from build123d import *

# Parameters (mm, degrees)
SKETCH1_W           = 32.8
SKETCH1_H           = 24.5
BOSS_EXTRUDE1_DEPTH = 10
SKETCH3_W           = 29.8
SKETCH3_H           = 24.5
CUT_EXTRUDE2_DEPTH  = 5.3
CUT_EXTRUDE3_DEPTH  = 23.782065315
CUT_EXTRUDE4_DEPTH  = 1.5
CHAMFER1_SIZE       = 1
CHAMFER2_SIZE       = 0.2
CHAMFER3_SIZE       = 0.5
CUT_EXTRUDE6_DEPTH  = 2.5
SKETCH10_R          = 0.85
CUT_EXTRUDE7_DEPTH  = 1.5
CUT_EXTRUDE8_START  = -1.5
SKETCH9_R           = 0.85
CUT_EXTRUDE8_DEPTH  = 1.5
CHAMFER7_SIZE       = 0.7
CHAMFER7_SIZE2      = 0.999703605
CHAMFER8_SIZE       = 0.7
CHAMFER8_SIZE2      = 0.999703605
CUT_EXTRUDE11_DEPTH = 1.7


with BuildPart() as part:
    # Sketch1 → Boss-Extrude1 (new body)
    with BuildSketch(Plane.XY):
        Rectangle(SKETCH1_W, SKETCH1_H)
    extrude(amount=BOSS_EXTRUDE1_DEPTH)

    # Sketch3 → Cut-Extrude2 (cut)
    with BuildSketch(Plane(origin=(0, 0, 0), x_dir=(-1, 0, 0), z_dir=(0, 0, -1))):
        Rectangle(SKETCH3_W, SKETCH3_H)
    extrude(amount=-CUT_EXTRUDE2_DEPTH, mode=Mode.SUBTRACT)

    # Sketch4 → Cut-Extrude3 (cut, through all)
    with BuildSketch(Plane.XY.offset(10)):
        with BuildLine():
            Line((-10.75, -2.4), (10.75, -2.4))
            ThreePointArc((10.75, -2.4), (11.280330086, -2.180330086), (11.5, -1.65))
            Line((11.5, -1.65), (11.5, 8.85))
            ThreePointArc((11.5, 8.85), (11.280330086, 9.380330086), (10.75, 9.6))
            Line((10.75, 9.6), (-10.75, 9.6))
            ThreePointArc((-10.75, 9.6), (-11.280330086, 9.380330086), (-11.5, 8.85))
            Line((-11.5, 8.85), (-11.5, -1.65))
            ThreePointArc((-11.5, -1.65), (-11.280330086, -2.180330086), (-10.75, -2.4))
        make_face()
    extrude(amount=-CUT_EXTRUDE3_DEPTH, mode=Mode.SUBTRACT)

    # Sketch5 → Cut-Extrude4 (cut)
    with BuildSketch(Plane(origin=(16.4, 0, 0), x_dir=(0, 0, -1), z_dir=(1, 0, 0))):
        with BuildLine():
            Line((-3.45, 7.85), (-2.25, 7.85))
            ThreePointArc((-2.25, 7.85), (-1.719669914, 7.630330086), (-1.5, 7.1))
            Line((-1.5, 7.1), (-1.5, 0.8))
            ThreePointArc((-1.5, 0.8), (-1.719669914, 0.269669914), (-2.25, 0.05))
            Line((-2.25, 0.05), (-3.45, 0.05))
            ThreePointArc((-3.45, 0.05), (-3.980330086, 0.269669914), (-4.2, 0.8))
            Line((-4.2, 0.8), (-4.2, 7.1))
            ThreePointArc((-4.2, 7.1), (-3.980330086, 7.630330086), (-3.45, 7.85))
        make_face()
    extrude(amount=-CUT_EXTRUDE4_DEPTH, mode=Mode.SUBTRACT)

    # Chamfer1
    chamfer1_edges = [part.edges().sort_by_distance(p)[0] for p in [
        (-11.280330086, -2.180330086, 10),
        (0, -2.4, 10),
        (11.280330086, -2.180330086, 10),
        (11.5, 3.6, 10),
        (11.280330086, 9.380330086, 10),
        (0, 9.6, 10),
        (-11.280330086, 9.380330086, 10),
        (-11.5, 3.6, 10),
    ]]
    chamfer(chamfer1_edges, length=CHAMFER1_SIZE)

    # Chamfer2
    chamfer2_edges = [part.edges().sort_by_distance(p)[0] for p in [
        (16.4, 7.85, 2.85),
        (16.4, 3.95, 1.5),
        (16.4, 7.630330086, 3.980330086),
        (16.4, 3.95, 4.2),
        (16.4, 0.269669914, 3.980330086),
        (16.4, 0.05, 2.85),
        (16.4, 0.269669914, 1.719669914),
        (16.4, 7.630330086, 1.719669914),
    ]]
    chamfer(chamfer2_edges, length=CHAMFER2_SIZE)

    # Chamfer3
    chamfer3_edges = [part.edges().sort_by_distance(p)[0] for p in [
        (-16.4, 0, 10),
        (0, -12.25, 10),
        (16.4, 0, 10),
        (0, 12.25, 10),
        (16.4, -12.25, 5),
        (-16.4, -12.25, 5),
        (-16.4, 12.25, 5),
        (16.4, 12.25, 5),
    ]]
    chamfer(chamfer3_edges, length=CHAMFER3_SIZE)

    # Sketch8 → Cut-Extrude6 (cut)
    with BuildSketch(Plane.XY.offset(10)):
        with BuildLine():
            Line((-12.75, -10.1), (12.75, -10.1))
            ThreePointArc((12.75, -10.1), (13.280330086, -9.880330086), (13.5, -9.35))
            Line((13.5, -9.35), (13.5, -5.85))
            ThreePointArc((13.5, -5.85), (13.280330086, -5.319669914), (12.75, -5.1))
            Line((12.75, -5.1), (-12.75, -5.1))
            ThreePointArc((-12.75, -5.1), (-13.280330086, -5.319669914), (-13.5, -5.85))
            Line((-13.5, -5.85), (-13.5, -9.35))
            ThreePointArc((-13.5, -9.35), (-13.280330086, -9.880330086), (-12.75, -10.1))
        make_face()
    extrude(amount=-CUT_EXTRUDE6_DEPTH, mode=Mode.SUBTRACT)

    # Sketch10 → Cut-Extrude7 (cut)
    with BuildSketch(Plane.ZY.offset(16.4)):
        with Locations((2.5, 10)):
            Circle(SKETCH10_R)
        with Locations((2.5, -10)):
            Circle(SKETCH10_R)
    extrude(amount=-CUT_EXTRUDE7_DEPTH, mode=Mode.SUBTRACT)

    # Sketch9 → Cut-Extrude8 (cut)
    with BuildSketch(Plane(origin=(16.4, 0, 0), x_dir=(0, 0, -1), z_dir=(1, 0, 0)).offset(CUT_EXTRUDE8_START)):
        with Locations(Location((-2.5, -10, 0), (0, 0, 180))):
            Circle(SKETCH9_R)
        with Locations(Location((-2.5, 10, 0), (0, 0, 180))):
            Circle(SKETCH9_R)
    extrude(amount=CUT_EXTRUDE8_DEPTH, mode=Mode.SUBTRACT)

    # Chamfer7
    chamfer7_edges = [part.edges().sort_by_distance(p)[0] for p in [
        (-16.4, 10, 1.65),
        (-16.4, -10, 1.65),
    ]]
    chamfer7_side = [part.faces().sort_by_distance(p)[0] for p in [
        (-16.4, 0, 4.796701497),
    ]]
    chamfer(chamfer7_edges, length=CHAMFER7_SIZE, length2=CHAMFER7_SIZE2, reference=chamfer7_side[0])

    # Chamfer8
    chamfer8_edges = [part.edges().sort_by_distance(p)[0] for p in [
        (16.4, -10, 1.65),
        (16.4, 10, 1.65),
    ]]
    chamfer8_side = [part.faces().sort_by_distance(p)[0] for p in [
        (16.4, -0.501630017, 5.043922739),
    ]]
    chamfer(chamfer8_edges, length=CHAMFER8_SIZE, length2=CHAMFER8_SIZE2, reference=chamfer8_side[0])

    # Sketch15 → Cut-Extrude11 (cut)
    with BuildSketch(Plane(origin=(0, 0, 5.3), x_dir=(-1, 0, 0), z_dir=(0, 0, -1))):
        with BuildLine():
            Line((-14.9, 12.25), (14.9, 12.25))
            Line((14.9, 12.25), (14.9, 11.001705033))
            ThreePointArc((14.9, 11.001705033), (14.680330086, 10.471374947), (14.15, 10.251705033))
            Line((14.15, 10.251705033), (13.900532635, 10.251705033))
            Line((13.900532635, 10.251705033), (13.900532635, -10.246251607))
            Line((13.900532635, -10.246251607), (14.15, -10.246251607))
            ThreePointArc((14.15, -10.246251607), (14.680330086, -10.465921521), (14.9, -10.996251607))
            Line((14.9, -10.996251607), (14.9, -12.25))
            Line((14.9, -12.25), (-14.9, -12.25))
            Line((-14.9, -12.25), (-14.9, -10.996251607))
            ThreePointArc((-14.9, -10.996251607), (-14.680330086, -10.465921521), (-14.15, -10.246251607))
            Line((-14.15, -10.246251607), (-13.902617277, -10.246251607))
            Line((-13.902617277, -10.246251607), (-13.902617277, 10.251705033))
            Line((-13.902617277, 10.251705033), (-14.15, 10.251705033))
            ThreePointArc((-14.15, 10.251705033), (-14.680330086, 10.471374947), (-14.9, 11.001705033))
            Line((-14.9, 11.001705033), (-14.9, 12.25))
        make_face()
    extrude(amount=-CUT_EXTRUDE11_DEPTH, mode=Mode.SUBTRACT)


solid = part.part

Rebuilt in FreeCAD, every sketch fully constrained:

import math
import FreeCAD as App
import Part
import Sketcher


def edges_at(feature, points):
    """Names of the edges that pass closest to the given points."""
    edges = feature.Shape.Edges
    near = lambda p: min(range(len(edges)), key=lambda i: edges[i].distToShape(Part.Vertex(*p))[0])
    return sorted({f"Edge{near(p) + 1}" for p in points})


def add_polygon(sketch, points):
    """Adds a closed chain of lines whose ends are joined by coincident constraints."""
    first, n = sketch.GeometryCount, len(points)
    for a, b in zip(points, points[1:] + points[:1]):
        sketch.addGeometry(Part.LineSegment(App.Vector(*a, 0), App.Vector(*b, 0)), False)
    for i in range(n):
        sketch.addConstraint(Sketcher.Constraint("Coincident", first + i, 2, first + (i + 1) % n, 1))

doc = App.newDocument("Part")
body = doc.addObject("PartDesign::Body", "Body")

sketch1 = body.newObject("Sketcher::SketchObject", "Sketch")
sketch1.AttachmentSupport = (doc.getObject("XY_Plane"), [""])
sketch1.MapMode = "FlatFace"
add_polygon(sketch1, [(-16, 12), (-16, -12), (16, -12), (16, 12)])
sketch1.addConstraint(Sketcher.Constraint("Vertical", 0))
sketch1.addConstraint(Sketcher.Constraint("Horizontal", 1))
sketch1.addConstraint(Sketcher.Constraint("Vertical", 2))
sketch1.addConstraint(Sketcher.Constraint("Horizontal", 3))
sketch1.addConstraint(Sketcher.Constraint("Symmetric", 0, 2, 2, 2, -1, 1))
sketch1.addConstraint(Sketcher.Constraint("DistanceX", 1, 1, 1, 2, 32.8))
sketch1.addConstraint(Sketcher.Constraint("DistanceY", 0, 2, 0, 1, 24.5))
pad1 = body.newObject("PartDesign::Pad", "Pad")
pad1.Profile = sketch1
pad1.Length = 10

sketch2 = body.newObject("Sketcher::SketchObject", "Sketch001")
sketch2.AttachmentSupport = (doc.getObject("XY_Plane"), [""])
sketch2.MapMode = "FlatFace"
add_polygon(sketch2, [(15, 12), (15, -12), (-15, -12), (-15, 12)])
sketch2.addConstraint(Sketcher.Constraint("Vertical", 0))
sketch2.addConstraint(Sketcher.Constraint("Horizontal", 1))
sketch2.addConstraint(Sketcher.Constraint("Vertical", 2))
sketch2.addConstraint(Sketcher.Constraint("Horizontal", 3))
sketch2.addConstraint(Sketcher.Constraint("Symmetric", 0, 2, 2, 2, -1, 1))
sketch2.addConstraint(Sketcher.Constraint("DistanceX", 1, 2, 1, 1, 29.8))
sketch2.addConstraint(Sketcher.Constraint("DistanceY", 0, 2, 0, 1, 24.5))
pocket1 = body.newObject("PartDesign::Pocket", "Pocket")
pocket1.Profile = sketch2
pocket1.Length = 5.3
pocket1.Reversed = True

sketch3 = body.newObject("Sketcher::SketchObject", "Sketch002")
sketch3.AttachmentSupport = (doc.getObject("XY_Plane"), [""])
sketch3.MapMode = "FlatFace"
sketch3.AttachmentOffset = App.Placement(App.Vector(0, 0, 10), App.Rotation())
sketch3.addGeometry(Part.LineSegment(App.Vector(-10.8, -2.4, 0), App.Vector(10.8, -2.4, 0)), False)
sketch3.addGeometry(Part.ArcOfCircle(Part.Circle(App.Vector(10.8, -1.6, 0), App.Vector(0, 0, 1), 0.8), math.radians(-90), math.radians(0)), False)
sketch3.addGeometry(Part.LineSegment(App.Vector(11.5, -1.6, 0), App.Vector(11.5, 8.8, 0)), False)
sketch3.addGeometry(Part.ArcOfCircle(Part.Circle(App.Vector(10.8, 8.8, 0), App.Vector(0, 0, 1), 0.8), math.radians(0), math.radians(90)), False)
sketch3.addGeometry(Part.LineSegment(App.Vector(10.8, 9.6, 0), App.Vector(-10.8, 9.6, 0)), False)
sketch3.addGeometry(Part.ArcOfCircle(Part.Circle(App.Vector(-10.8, 8.8, 0), App.Vector(0, 0, 1), 0.8), math.radians(90), math.radians(180)), False)
sketch3.addGeometry(Part.LineSegment(App.Vector(-11.5, 8.8, 0), App.Vector(-11.5, -1.6, 0)), False)
sketch3.addGeometry(Part.ArcOfCircle(Part.Circle(App.Vector(-10.8, -1.6, 0), App.Vector(0, 0, 1), 0.8), math.radians(180), math.radians(270)), False)
sketch3.addConstraint(Sketcher.Constraint("Tangent", 0, 2, 1, 1))
sketch3.addConstraint(Sketcher.Constraint("Tangent", 1, 2, 2, 1))
sketch3.addConstraint(Sketcher.Constraint("Tangent", 2, 2, 3, 1))
sketch3.addConstraint(Sketcher.Constraint("Tangent", 3, 2, 4, 1))
sketch3.addConstraint(Sketcher.Constraint("Tangent", 4, 2, 5, 1))
sketch3.addConstraint(Sketcher.Constraint("Tangent", 5, 2, 6, 1))
sketch3.addConstraint(Sketcher.Constraint("Tangent", 6, 2, 7, 1))
sketch3.addConstraint(Sketcher.Constraint("Tangent", 7, 2, 0, 1))
sketch3.addConstraint(Sketcher.Constraint("Horizontal", 0))
sketch3.addConstraint(Sketcher.Constraint("Vertical", 2))
sketch3.addConstraint(Sketcher.Constraint("Horizontal", 4))
sketch3.addConstraint(Sketcher.Constraint("Vertical", 6))
sketch3.addConstraint(Sketcher.Constraint("Equal", 1, 3))
sketch3.addConstraint(Sketcher.Constraint("Equal", 3, 5))
sketch3.addConstraint(Sketcher.Constraint("Equal", 5, 7))
sketch3.addConstraint(Sketcher.Constraint("Radius", 1, 0.75))
sketch3.addConstraint(Sketcher.Constraint("DistanceX", 0, 1, 0, 2, 21.5))
sketch3.addConstraint(Sketcher.Constraint("DistanceY", 2, 1, 2, 2, 10.5))
sketch3.addConstraint(Sketcher.Constraint("DistanceY", 0, 2, -1, 1, 2.4))
sketch3.addConstraint(Sketcher.Constraint("DistanceX", -1, 1, 1, 2, 11.5))
pocket2 = body.newObject("PartDesign::Pocket", "Pocket001")
pocket2.Profile = sketch3
pocket2.Type = "ThroughAll"

sketch4 = body.newObject("Sketcher::SketchObject", "Sketch003")
sketch4.AttachmentSupport = (doc.getObject("YZ_Plane"), [""])
sketch4.MapMode = "FlatFace"
sketch4.AttachmentOffset = App.Placement(App.Vector(0, 0, 16.4), App.Rotation())
sketch4.addGeometry(Part.LineSegment(App.Vector(7.8, 2.2, 0), App.Vector(7.8, 3.5, 0)), False)
sketch4.addGeometry(Part.ArcOfCircle(Part.Circle(App.Vector(7.1, 3.5, 0), App.Vector(0, 0, 1), 0.8), math.radians(0), math.radians(90)), False)
sketch4.addGeometry(Part.LineSegment(App.Vector(7.1, 4.2, 0), App.Vector(0.8, 4.2, 0)), False)
sketch4.addGeometry(Part.ArcOfCircle(Part.Circle(App.Vector(0.8, 3.5, 0), App.Vector(0, 0, 1), 0.8), math.radians(90), math.radians(180)), False)
sketch4.addGeometry(Part.LineSegment(App.Vector(0.1, 3.5, 0), App.Vector(0.1, 2.2, 0)), False)
sketch4.addGeometry(Part.ArcOfCircle(Part.Circle(App.Vector(0.8, 2.2, 0), App.Vector(0, 0, 1), 0.8), math.radians(180), math.radians(270)), False)
sketch4.addGeometry(Part.LineSegment(App.Vector(0.8, 1.5, 0), App.Vector(7.1, 1.5, 0)), False)
sketch4.addGeometry(Part.ArcOfCircle(Part.Circle(App.Vector(7.1, 2.2, 0), App.Vector(0, 0, 1), 0.8), math.radians(-90), math.radians(0)), False)
sketch4.addConstraint(Sketcher.Constraint("Tangent", 0, 2, 1, 1))
sketch4.addConstraint(Sketcher.Constraint("Tangent", 1, 2, 2, 1))
sketch4.addConstraint(Sketcher.Constraint("Tangent", 2, 2, 3, 1))
sketch4.addConstraint(Sketcher.Constraint("Tangent", 3, 2, 4, 1))
sketch4.addConstraint(Sketcher.Constraint("Tangent", 4, 2, 5, 1))
sketch4.addConstraint(Sketcher.Constraint("Tangent", 5, 2, 6, 1))
sketch4.addConstraint(Sketcher.Constraint("Tangent", 6, 2, 7, 1))
sketch4.addConstraint(Sketcher.Constraint("Tangent", 7, 2, 0, 1))
sketch4.addConstraint(Sketcher.Constraint("Vertical", 0))
sketch4.addConstraint(Sketcher.Constraint("Horizontal", 2))
sketch4.addConstraint(Sketcher.Constraint("Vertical", 4))
sketch4.addConstraint(Sketcher.Constraint("Horizontal", 6))
sketch4.addConstraint(Sketcher.Constraint("Equal", 1, 3))
sketch4.addConstraint(Sketcher.Constraint("Equal", 3, 5))
sketch4.addConstraint(Sketcher.Constraint("Equal", 5, 7))
sketch4.addConstraint(Sketcher.Constraint("Radius", 1, 0.75))
sketch4.addConstraint(Sketcher.Constraint("DistanceX", 2, 2, 2, 1, 6.3))
sketch4.addConstraint(Sketcher.Constraint("DistanceY", 0, 1, 0, 2, 1.2))
sketch4.addConstraint(Sketcher.Constraint("DistanceX", -1, 1, 1, 3, 7.1))
sketch4.addConstraint(Sketcher.Constraint("DistanceY", -1, 1, 1, 2, 4.2))
pocket3 = body.newObject("PartDesign::Pocket", "Pocket002")
pocket3.Profile = sketch4
pocket3.Length = 1.5
doc.recompute()

chamfer = body.newObject("PartDesign::Chamfer", "Chamfer")
chamfer.Base = (pocket3, edges_at(pocket3, [
    (-11.28, -2.18, 10),
    (0, -2.4, 10),
    (11.28, -2.18, 10),
    (11.5, 3.6, 10),
    (11.28, 9.38, 10),
    (0, 9.6, 10),
    (-11.28, 9.38, 10),
    (-11.5, 3.6, 10),
]))
chamfer.Size = 1
doc.recompute()

chamfer2 = body.newObject("PartDesign::Chamfer", "Chamfer001")
chamfer2.Base = (chamfer, edges_at(chamfer, [
    (16.4, 7.85, 2.85),
    (16.4, 3.95, 1.5),
    (16.4, 7.63, 3.98),
    (16.4, 3.95, 4.2),
    (16.4, 0.27, 3.98),
    (16.4, 0.05, 2.85),
    (16.4, 0.27, 1.72),
    (16.4, 7.63, 1.72),
]))
chamfer2.Size = 0.2
doc.recompute()

chamfer3 = body.newObject("PartDesign::Chamfer", "Chamfer002")
chamfer3.Base = (chamfer2, edges_at(chamfer2, [
    (-16.4, 0, 10),
    (0, -12.25, 10),
    (16.4, 0, 10),
    (0, 12.25, 10),
    (16.4, -12.25, 5),
    (-16.4, -12.25, 5),
    (-16.4, 12.25, 5),
    (16.4, 12.25, 5),
]))
chamfer3.Size = 0.5

sketch5 = body.newObject("Sketcher::SketchObject", "Sketch004")
sketch5.AttachmentSupport = (doc.getObject("XY_Plane"), [""])
sketch5.MapMode = "FlatFace"
sketch5.AttachmentOffset = App.Placement(App.Vector(0, 0, 10), App.Rotation())
sketch5.addGeometry(Part.LineSegment(App.Vector(-12.8, -10.1, 0), App.Vector(12.8, -10.1, 0)), False)
sketch5.addGeometry(Part.ArcOfCircle(Part.Circle(App.Vector(12.8, -9.3, 0), App.Vector(0, 0, 1), 0.8), math.radians(-90), math.radians(0)), False)
sketch5.addGeometry(Part.LineSegment(App.Vector(13.5, -9.3, 0), App.Vector(13.5, -5.8, 0)), False)
sketch5.addGeometry(Part.ArcOfCircle(Part.Circle(App.Vector(12.8, -5.8, 0), App.Vector(0, 0, 1), 0.8), math.radians(0), math.radians(90)), False)
sketch5.addGeometry(Part.LineSegment(App.Vector(12.8, -5.1, 0), App.Vector(-12.8, -5.1, 0)), False)
sketch5.addGeometry(Part.ArcOfCircle(Part.Circle(App.Vector(-12.8, -5.8, 0), App.Vector(0, 0, 1), 0.8), math.radians(90), math.radians(180)), False)
sketch5.addGeometry(Part.LineSegment(App.Vector(-13.5, -5.8, 0), App.Vector(-13.5, -9.3, 0)), False)
sketch5.addGeometry(Part.ArcOfCircle(Part.Circle(App.Vector(-12.8, -9.3, 0), App.Vector(0, 0, 1), 0.8), math.radians(180), math.radians(270)), False)
sketch5.addConstraint(Sketcher.Constraint("Tangent", 0, 2, 1, 1))
sketch5.addConstraint(Sketcher.Constraint("Tangent", 1, 2, 2, 1))
sketch5.addConstraint(Sketcher.Constraint("Tangent", 2, 2, 3, 1))
sketch5.addConstraint(Sketcher.Constraint("Tangent", 3, 2, 4, 1))
sketch5.addConstraint(Sketcher.Constraint("Tangent", 4, 2, 5, 1))
sketch5.addConstraint(Sketcher.Constraint("Tangent", 5, 2, 6, 1))
sketch5.addConstraint(Sketcher.Constraint("Tangent", 6, 2, 7, 1))
sketch5.addConstraint(Sketcher.Constraint("Tangent", 7, 2, 0, 1))
sketch5.addConstraint(Sketcher.Constraint("Horizontal", 0))
sketch5.addConstraint(Sketcher.Constraint("Vertical", 2))
sketch5.addConstraint(Sketcher.Constraint("Horizontal", 4))
sketch5.addConstraint(Sketcher.Constraint("Vertical", 6))
sketch5.addConstraint(Sketcher.Constraint("Equal", 1, 3))
sketch5.addConstraint(Sketcher.Constraint("Equal", 3, 5))
sketch5.addConstraint(Sketcher.Constraint("Equal", 5, 7))
sketch5.addConstraint(Sketcher.Constraint("Radius", 1, 0.75))
sketch5.addConstraint(Sketcher.Constraint("DistanceX", 0, 1, 0, 2, 25.5))
sketch5.addConstraint(Sketcher.Constraint("DistanceY", 2, 1, 2, 2, 3.5))
sketch5.addConstraint(Sketcher.Constraint("DistanceY", 0, 2, -1, 1, 10.1))
sketch5.addConstraint(Sketcher.Constraint("DistanceX", -1, 1, 1, 2, 13.5))
pocket4 = body.newObject("PartDesign::Pocket", "Pocket003")
pocket4.Profile = sketch5
pocket4.Length = 2.5

sketch6 = body.newObject("Sketcher::SketchObject", "Sketch005")
sketch6.AttachmentSupport = (doc.getObject("YZ_Plane"), [""])
sketch6.MapMode = "FlatFace"
sketch6.AttachmentOffset = App.Placement(App.Vector(0, 0, -16.4), App.Rotation())
sketch6.addGeometry(Part.Circle(App.Vector(10, 2.5, 0), App.Vector(0, 0, 1), 0.8), False)
sketch6.addGeometry(Part.Circle(App.Vector(-10, 2.5, 0), App.Vector(0, 0, 1), 0.8), False)
sketch6.addConstraint(Sketcher.Constraint("Equal", 0, 1))
sketch6.addConstraint(Sketcher.Constraint("Symmetric", 0, 3, 1, 3, -2))
sketch6.addConstraint(Sketcher.Constraint("Diameter", 0, 1.7))
sketch6.addConstraint(Sketcher.Constraint("DistanceX", -1, 1, 0, 3, 10.0))
sketch6.addConstraint(Sketcher.Constraint("DistanceY", -1, 1, 0, 3, 2.5))
pocket5 = body.newObject("PartDesign::Pocket", "Pocket004")
pocket5.Profile = sketch6
pocket5.Length = 1.5
pocket5.Reversed = True

sketch7 = body.newObject("Sketcher::SketchObject", "Sketch006")
sketch7.AttachmentSupport = (doc.getObject("YZ_Plane"), [""])
sketch7.MapMode = "FlatFace"
sketch7.AttachmentOffset = App.Placement(App.Vector(0, 0, 14.9), App.Rotation())
sketch7.addGeometry(Part.Circle(App.Vector(-10, 2.5, 0), App.Vector(0, 0, 1), 0.8), False)
sketch7.addGeometry(Part.Circle(App.Vector(10, 2.5, 0), App.Vector(0, 0, 1), 0.8), False)
sketch7.addConstraint(Sketcher.Constraint("Equal", 0, 1))
sketch7.addConstraint(Sketcher.Constraint("Symmetric", 0, 3, 1, 3, -2))
sketch7.addConstraint(Sketcher.Constraint("Diameter", 0, 1.7))
sketch7.addConstraint(Sketcher.Constraint("DistanceX", 0, 3, -1, 1, 10.0))
sketch7.addConstraint(Sketcher.Constraint("DistanceY", -1, 1, 0, 3, 2.5))
pocket6 = body.newObject("PartDesign::Pocket", "Pocket005")
pocket6.Profile = sketch7
pocket6.Length = 1.5
pocket6.Reversed = True
doc.recompute()

chamfer4 = body.newObject("PartDesign::Chamfer", "Chamfer003")
chamfer4.Base = (pocket6, edges_at(pocket6, [(-16.4, 10, 1.65), (-16.4, -10, 1.65)]))
chamfer4.ChamferType = "Two distances"
chamfer4.Size = 0.7
chamfer4.Size2 = 0.999704
doc.recompute()

chamfer5 = body.newObject("PartDesign::Chamfer", "Chamfer004")
chamfer5.Base = (chamfer4, edges_at(chamfer4, [(16.4, -10, 1.65), (16.4, 10, 1.65)]))
chamfer5.ChamferType = "Two distances"
chamfer5.Size = 0.7
chamfer5.Size2 = 0.999704

sketch8 = body.newObject("Sketcher::SketchObject", "Sketch007")
sketch8.AttachmentSupport = (doc.getObject("XY_Plane"), [""])
sketch8.MapMode = "FlatFace"
sketch8.AttachmentOffset = App.Placement(App.Vector(0, 0, 5.3), App.Rotation())
sketch8.addGeometry(Part.LineSegment(App.Vector(-14.9, 12.25, 0), App.Vector(14.9, 12.25, 0)), False)
sketch8.addGeometry(Part.LineSegment(App.Vector(14.9, 12.25, 0), App.Vector(14.9, 11, 0)), False)
sketch8.addGeometry(Part.ArcOfCircle(Part.Circle(App.Vector(14.15, 11, 0), App.Vector(0, 0, 1), 0.75), math.radians(-90), math.radians(0)), False)
sketch8.addGeometry(Part.LineSegment(App.Vector(14.15, 10.25, 0), App.Vector(13.9, 10.25, 0)), False)
sketch8.addGeometry(Part.LineSegment(App.Vector(13.9, 10.25, 0), App.Vector(13.9, -10.25, 0)), False)
sketch8.addGeometry(Part.LineSegment(App.Vector(13.9, -10.25, 0), App.Vector(14.15, -10.25, 0)), False)
sketch8.addGeometry(Part.ArcOfCircle(Part.Circle(App.Vector(14.15, -11, 0), App.Vector(0, 0, 1), 0.75), math.radians(0), math.radians(90)), False)
sketch8.addGeometry(Part.LineSegment(App.Vector(14.9, -11, 0), App.Vector(14.9, -12.25, 0)), False)
sketch8.addGeometry(Part.LineSegment(App.Vector(14.9, -12.25, 0), App.Vector(-14.9, -12.25, 0)), False)
sketch8.addGeometry(Part.LineSegment(App.Vector(-14.9, -12.25, 0), App.Vector(-14.9, -11, 0)), False)
sketch8.addGeometry(Part.ArcOfCircle(Part.Circle(App.Vector(-14.15, -11, 0), App.Vector(0, 0, 1), 0.75), math.radians(90), math.radians(180)), False)
sketch8.addGeometry(Part.LineSegment(App.Vector(-14.15, -10.25, 0), App.Vector(-13.9, -10.25, 0)), False)
sketch8.addGeometry(Part.LineSegment(App.Vector(-13.9, -10.25, 0), App.Vector(-13.9, 10.25, 0)), False)
sketch8.addGeometry(Part.LineSegment(App.Vector(-13.9, 10.25, 0), App.Vector(-14.15, 10.25, 0)), False)
sketch8.addGeometry(Part.ArcOfCircle(Part.Circle(App.Vector(-14.15, 11, 0), App.Vector(0, 0, 1), 0.75), math.radians(180), math.radians(270)), False)
sketch8.addGeometry(Part.LineSegment(App.Vector(-14.9, 11, 0), App.Vector(-14.9, 12.25, 0)), False)
sketch8.addConstraint(Sketcher.Constraint("Coincident", 0, 2, 1, 1))
sketch8.addConstraint(Sketcher.Constraint("Tangent", 1, 2, 2, 2))
sketch8.addConstraint(Sketcher.Constraint("Tangent", 2, 1, 3, 1))
sketch8.addConstraint(Sketcher.Constraint("Coincident", 3, 2, 4, 1))
sketch8.addConstraint(Sketcher.Constraint("Coincident", 4, 2, 5, 1))
sketch8.addConstraint(Sketcher.Constraint("Tangent", 5, 2, 6, 2))
sketch8.addConstraint(Sketcher.Constraint("Tangent", 6, 1, 7, 1))
sketch8.addConstraint(Sketcher.Constraint("Coincident", 7, 2, 8, 1))
sketch8.addConstraint(Sketcher.Constraint("Coincident", 8, 2, 9, 1))
sketch8.addConstraint(Sketcher.Constraint("Tangent", 9, 2, 10, 2))
sketch8.addConstraint(Sketcher.Constraint("Tangent", 10, 1, 11, 1))
sketch8.addConstraint(Sketcher.Constraint("Coincident", 11, 2, 12, 1))
sketch8.addConstraint(Sketcher.Constraint("Coincident", 12, 2, 13, 1))
sketch8.addConstraint(Sketcher.Constraint("Tangent", 13, 2, 14, 2))
sketch8.addConstraint(Sketcher.Constraint("Tangent", 14, 1, 15, 1))
sketch8.addConstraint(Sketcher.Constraint("Coincident", 15, 2, 0, 1))
sketch8.addConstraint(Sketcher.Constraint("Horizontal", 0))
sketch8.addConstraint(Sketcher.Constraint("Vertical", 1))
sketch8.addConstraint(Sketcher.Constraint("Horizontal", 3))
sketch8.addConstraint(Sketcher.Constraint("Vertical", 4))
sketch8.addConstraint(Sketcher.Constraint("Horizontal", 5))
sketch8.addConstraint(Sketcher.Constraint("Vertical", 7))
sketch8.addConstraint(Sketcher.Constraint("Horizontal", 8))
sketch8.addConstraint(Sketcher.Constraint("Vertical", 9))
sketch8.addConstraint(Sketcher.Constraint("Horizontal", 11))
sketch8.addConstraint(Sketcher.Constraint("Vertical", 12))
sketch8.addConstraint(Sketcher.Constraint("Horizontal", 13))
sketch8.addConstraint(Sketcher.Constraint("Vertical", 15))
sketch8.addConstraint(Sketcher.Constraint("Equal", 2, 6))
sketch8.addConstraint(Sketcher.Constraint("Equal", 6, 10))
sketch8.addConstraint(Sketcher.Constraint("Equal", 10, 14))
sketch8.addConstraint(Sketcher.Constraint("Symmetric", 0, 2, 8, 2, -1, 1))
sketch8.addConstraint(Sketcher.Constraint("Symmetric", 6, 3, 10, 3, -2))
sketch8.addConstraint(Sketcher.Constraint("Symmetric", 2, 3, 14, 3, -2))
sketch8.addConstraint(Sketcher.Constraint("Radius", 2, 0.75))
sketch8.addConstraint(Sketcher.Constraint("DistanceX", 0, 1, 0, 2, 29.8))
sketch8.addConstraint(Sketcher.Constraint("DistanceY", -1, 1, 0, 2, 12.25))
sketch8.addConstraint(Sketcher.Constraint("DistanceY", 7, 2, 7, 1, 1.253748))
sketch8.addConstraint(Sketcher.Constraint("DistanceX", 3, 2, 3, 1, 0.247383))
sketch8.addConstraint(Sketcher.Constraint("DistanceX", 11, 1, 11, 2, 0.249467))
sketch8.addConstraint(Sketcher.Constraint("DistanceY", 1, 2, 1, 1, 1.248295))
pocket7 = body.newObject("PartDesign::Pocket", "Pocket006")
pocket7.Profile = sketch8
pocket7.Length = 1.7
pocket7.Reversed = True

doc.recompute()
